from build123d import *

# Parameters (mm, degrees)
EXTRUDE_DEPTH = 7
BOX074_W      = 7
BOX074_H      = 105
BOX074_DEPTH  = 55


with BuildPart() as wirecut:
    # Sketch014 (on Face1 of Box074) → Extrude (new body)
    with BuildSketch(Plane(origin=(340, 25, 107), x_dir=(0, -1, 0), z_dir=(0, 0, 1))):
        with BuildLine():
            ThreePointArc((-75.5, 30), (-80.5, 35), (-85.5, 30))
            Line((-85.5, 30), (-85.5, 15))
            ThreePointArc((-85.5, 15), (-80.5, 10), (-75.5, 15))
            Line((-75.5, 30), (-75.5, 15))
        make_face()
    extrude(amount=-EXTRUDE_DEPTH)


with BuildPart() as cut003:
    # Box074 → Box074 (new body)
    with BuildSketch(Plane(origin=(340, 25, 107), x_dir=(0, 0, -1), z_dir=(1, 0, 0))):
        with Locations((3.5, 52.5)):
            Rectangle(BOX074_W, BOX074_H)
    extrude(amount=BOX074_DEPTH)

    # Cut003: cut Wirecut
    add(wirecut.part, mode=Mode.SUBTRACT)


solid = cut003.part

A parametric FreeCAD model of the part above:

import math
import FreeCAD as App
import Part
import Sketcher
from FreeCAD import Vector
Q = App.Units.Quantity


def add_polygon(sketch, points):
    """Adds a closed chain of lines whose ends are joined by coincident constraints."""
    first, n = sketch.GeometryCount, len(points)
    for a, b in zip(points, points[1:] + points[:1]):
        sketch.addGeometry(Part.LineSegment(App.Vector(*a, 0), App.Vector(*b, 0)), False)
    for i in range(n):
        sketch.addConstraint(Sketcher.Constraint("Coincident", first + i, 2, first + (i + 1) % n, 1))

doc = App.newDocument("Part")
body = doc.addObject("PartDesign::Body", "Body")

sketch1 = body.newObject("Sketcher::SketchObject", "Sketch")
sketch1.AttachmentSupport = (doc.getObject("XY_Plane"), [""])
sketch1.MapMode = "FlatFace"
sketch1.AttachmentOffset = App.Placement(Vector(0, 0, 107), App.Rotation())
sketch1.addGeometry([
    Part.ArcOfCircle(Part.Circle(Vector(370, 106, 0), Vector(0, 0, 1), 5), math.radians(-90), math.radians(90)),
    Part.LineSegment(Vector(370, 110, 0), Vector(355, 110, 0)),
    Part.ArcOfCircle(Part.Circle(Vector(355, 106, 0), Vector(0, 0, 1), 5), math.radians(90), math.radians(270)),
    Part.LineSegment(Vector(355, 100, 0), Vector(370, 100, 0)),
], False)
sketch1.addConstraint([
    Sketcher.Constraint("Tangent", 0, 2, 1, 1),
    Sketcher.Constraint("Tangent", 1, 2, 2, 1),
    Sketcher.Constraint("Tangent", 2, 2, 3, 1),
    Sketcher.Constraint("Tangent", 3, 2, 0, 1),
    Sketcher.Constraint("Horizontal", 1),
    Sketcher.Constraint("Horizontal", 3),
    Sketcher.Constraint("Radius", 0, Q("5 mm")),
    Sketcher.Constraint("DistanceX", 1, 2, 1, 1, Q("15 mm")),
    Sketcher.Constraint("DistanceX", -1, 1, 0, 3, Q("370 mm")),
    Sketcher.Constraint("DistanceY", -1, 1, 0, 3, Q("105.5 mm")),
])
pad1 = body.newObject("PartDesign::Pad", "Pad")
pad1.Profile = sketch1
pad1.Length = 7
pad1.Reversed = True
body2 = doc.addObject("PartDesign::Body", "Body001")

sketch2 = body2.newObject("Sketcher::SketchObject", "Sketch001")
sketch2.AttachmentSupport = (doc.getObject("YZ_Plane001"), [""])
sketch2.MapMode = "FlatFace"
sketch2.AttachmentOffset = App.Placement(Vector(0, 0, 340), App.Rotation())
add_polygon(sketch2, [(130, 107), (25, 107), (25, 100), (130, 100)])
sketch2.addConstraint([
    Sketcher.Constraint("Horizontal", 0),
    Sketcher.Constraint("Vertical", 1),
    Sketcher.Constraint("Horizontal", 2),
    Sketcher.Constraint("Vertical", 3),
    Sketcher.Constraint("DistanceX", 0, 2, 0, 1, Q("105 mm")),
    Sketcher.Constraint("DistanceY", 1, 2, 1, 1, Q("7 mm")),
    Sketcher.Constraint("DistanceX", -1, 1, 0, 2, Q("25 mm")),
    Sketcher.Constraint("DistanceY", -1, 1, 0, 2, Q("107 mm")),
])
pad2 = body2.newObject("PartDesign::Pad", "Pad001")
pad2.Profile = sketch2
pad2.Length = 55
doc.recompute()

boolean = body2.newObject("PartDesign::Boolean", "Boolean")
boolean.Type = "Cut"
boolean.addObjects([body])

doc.recompute()
